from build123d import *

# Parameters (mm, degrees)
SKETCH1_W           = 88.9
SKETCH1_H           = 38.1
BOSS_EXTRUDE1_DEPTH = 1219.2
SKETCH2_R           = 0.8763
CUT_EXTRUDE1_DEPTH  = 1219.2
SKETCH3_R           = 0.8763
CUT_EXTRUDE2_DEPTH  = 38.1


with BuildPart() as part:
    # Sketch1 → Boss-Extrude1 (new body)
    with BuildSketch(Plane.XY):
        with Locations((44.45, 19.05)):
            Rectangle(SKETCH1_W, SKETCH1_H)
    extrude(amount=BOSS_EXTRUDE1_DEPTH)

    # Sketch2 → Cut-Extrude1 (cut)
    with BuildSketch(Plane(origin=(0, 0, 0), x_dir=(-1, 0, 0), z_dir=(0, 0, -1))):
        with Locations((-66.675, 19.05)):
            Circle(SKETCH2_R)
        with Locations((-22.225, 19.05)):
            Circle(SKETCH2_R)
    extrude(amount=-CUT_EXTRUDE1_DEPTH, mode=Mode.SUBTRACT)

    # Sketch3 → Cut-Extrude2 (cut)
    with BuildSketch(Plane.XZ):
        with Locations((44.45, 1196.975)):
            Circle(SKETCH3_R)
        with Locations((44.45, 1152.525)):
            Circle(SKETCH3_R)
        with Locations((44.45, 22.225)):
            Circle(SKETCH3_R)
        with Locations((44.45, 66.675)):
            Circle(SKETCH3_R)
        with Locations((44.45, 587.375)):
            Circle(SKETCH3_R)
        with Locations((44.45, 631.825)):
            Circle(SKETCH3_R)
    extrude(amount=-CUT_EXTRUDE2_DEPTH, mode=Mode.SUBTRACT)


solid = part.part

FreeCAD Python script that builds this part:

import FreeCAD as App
import Part
import Sketcher
Q = App.Units.Quantity

doc = App.newDocument("Part")
params = doc.addObject("Spreadsheet::Sheet", "Params")
for row, (alias, value) in enumerate([
    ("sketch1_width", "3.5 in"),
    ("sketch1_height", "1.5 in"),
    ("pad1_length", "48 in"),
    ("sketch2_diameter", "0.069 in"),
    ("pocket1_length", "48 in"),
    ("sketch3_diameter", "0.069 in"),
    ("pocket2_length", "1.5 in"),
], start=1):
    params.set(f"A{row}", alias)
    params.set(f"B{row}", "=" + value)
    params.setAlias(f"B{row}", alias)

body = doc.addObject("PartDesign::Body", "Body")

sketch1 = doc.addObject("Sketcher::SketchObject", "Sketch")
body.addObject(sketch1)
sketch1.AttachmentSupport = (doc.XY_Plane, [""])
sketch1.MapMode = "FlatFace"
sketch1.addGeometry([
    Part.LineSegment(App.Vector(0, 38, 0), App.Vector(0, 0, 0)),
    Part.LineSegment(App.Vector(0, 0, 0), App.Vector(89, 0, 0)),
    Part.LineSegment(App.Vector(89, 0, 0), App.Vector(89, 38, 0)),
    Part.LineSegment(App.Vector(89, 38, 0), App.Vector(0, 38, 0)),
], False)
sketch1.addConstraint([
    Sketcher.Constraint("Coincident", 0, 2, 1, 1),
    Sketcher.Constraint("Coincident", 1, 2, 2, 1),
    Sketcher.Constraint("Coincident", 2, 2, 3, 1),
    Sketcher.Constraint("Coincident", 3, 2, 0, 1),
    Sketcher.Constraint("Vertical", 0),
    Sketcher.Constraint("Horizontal", 1),
    Sketcher.Constraint("Vertical", 2),
    Sketcher.Constraint("Horizontal", 3),
    Sketcher.Constraint("Coincident", 0, 2, -1, 1),
    Sketcher.Constraint("DistanceX", 1, 1, 1, 2, Q("3.5 in")),
    Sketcher.Constraint("DistanceY", 0, 2, 0, 1, Q("1.5 in")),
])
sketch1.setExpression("Constraints[9]", "Params.sketch1_width")
sketch1.setExpression("Constraints[10]", "Params.sketch1_height")
pad1 = doc.addObject("PartDesign::Pad", "Pad")
body.addObject(pad1)
pad1.Profile = sketch1
pad1.setExpression("Length", "Params.pad1_length")

sketch2 = doc.addObject("Sketcher::SketchObject", "Sketch001")
body.addObject(sketch2)
sketch2.AttachmentSupport = (doc.XY_Plane, [""])
sketch2.MapMode = "FlatFace"
sketch2.addGeometry([
    Part.Circle(App.Vector(66.7, 19.1, 0), App.Vector(0, 0, 1), 0.9),
    Part.Circle(App.Vector(22.2, 19.1, 0), App.Vector(0, 0, 1), 0.9),
], False)
sketch2.addConstraint([
    Sketcher.Constraint("Equal", 0, 1),
    Sketcher.Constraint("Horizontal", 0, 3, 1, 3),
    Sketcher.Constraint("Diameter", 0, Q("0.069 in")),
    Sketcher.Constraint("DistanceY", -1, 1, 0, 3, Q("0.75 in")),
    Sketcher.Constraint("DistanceX", 1, 3, 0, 3, Q("1.75 in")),
    Sketcher.Constraint("DistanceX", -1, 1, 0, 3, Q("2.625 in")),
])
sketch2.setExpression("Constraints[2]", "Params.sketch2_diameter")
pocket1 = doc.addObject("PartDesign::Pocket", "Pocket")
body.addObject(pocket1)
pocket1.Profile = sketch2
pocket1.setExpression("Length", "Params.pocket1_length")
pocket1.Reversed = True

sketch3 = doc.addObject("Sketcher::SketchObject", "Sketch002")
body.addObject(sketch3)
sketch3.AttachmentSupport = (doc.XZ_Plane, [""])
sketch3.MapMode = "FlatFace"
sketch3.addGeometry([
    Part.Circle(App.Vector(44.5, 1197, 0), App.Vector(0, 0, 1), 0.9),
    Part.Circle(App.Vector(44.5, 1152.5, 0), App.Vector(0, 0, 1), 0.9),
    Part.Circle(App.Vector(44.5, 22.2, 0), App.Vector(0, 0, 1), 0.9),
    Part.Circle(App.Vector(44.5, 66.7, 0), App.Vector(0, 0, 1), 0.9),
    Part.Circle(App.Vector(44.5, 587.4, 0), App.Vector(0, 0, 1), 0.9),
    Part.Circle(App.Vector(44.5, 631.8, 0), App.Vector(0, 0, 1), 0.9),
], False)
sketch3.addConstraint([
    Sketcher.Constraint("Equal", 0, 1),
    Sketcher.Constraint("Equal", 1, 2),
    Sketcher.Constraint("Equal", 2, 3),
    Sketcher.Constraint("Equal", 3, 4),
    Sketcher.Constraint("Equal", 4, 5),
    Sketcher.Constraint("Vertical", 0, 3, 1, 3),
    Sketcher.Constraint("Vertical", 1, 3, 2, 3),
    Sketcher.Constraint("Vertical", 2, 3, 3, 3),
    Sketcher.Constraint("Vertical", 3, 3, 4, 3),
    Sketcher.Constraint("Vertical", 4, 3, 5, 3),
    Sketcher.Constraint("Diameter", 0, Q("0.069 in")),
    Sketcher.Constraint("DistanceY", 4, 3, 0, 3, Q("24 in")),
    Sketcher.Constraint("DistanceY", 2, 3, 5, 3, Q("24 in")),
    Sketcher.Constraint("DistanceY", 2, 3, 1, 3, Q("44.5 in")),
    Sketcher.Constraint("DistanceY", 3, 3, 0, 3, Q("44.5 in")),
    Sketcher.Constraint("DistanceX", -1, 1, 0, 3, Q("1.75 in")),
    Sketcher.Constraint("DistanceY", 1, 3, 0, 3, Q("1.75 in")),
    Sketcher.Constraint("DistanceY", -1, 1, 0, 3, Q("47.125 in")),
])
sketch3.setExpression("Constraints[10]", "Params.sketch3_diameter")
pocket2 = doc.addObject("PartDesign::Pocket", "Pocket001")
body.addObject(pocket2)
pocket2.Profile = sketch3
pocket2.setExpression("Length", "Params.pocket2_length")

doc.recompute()
